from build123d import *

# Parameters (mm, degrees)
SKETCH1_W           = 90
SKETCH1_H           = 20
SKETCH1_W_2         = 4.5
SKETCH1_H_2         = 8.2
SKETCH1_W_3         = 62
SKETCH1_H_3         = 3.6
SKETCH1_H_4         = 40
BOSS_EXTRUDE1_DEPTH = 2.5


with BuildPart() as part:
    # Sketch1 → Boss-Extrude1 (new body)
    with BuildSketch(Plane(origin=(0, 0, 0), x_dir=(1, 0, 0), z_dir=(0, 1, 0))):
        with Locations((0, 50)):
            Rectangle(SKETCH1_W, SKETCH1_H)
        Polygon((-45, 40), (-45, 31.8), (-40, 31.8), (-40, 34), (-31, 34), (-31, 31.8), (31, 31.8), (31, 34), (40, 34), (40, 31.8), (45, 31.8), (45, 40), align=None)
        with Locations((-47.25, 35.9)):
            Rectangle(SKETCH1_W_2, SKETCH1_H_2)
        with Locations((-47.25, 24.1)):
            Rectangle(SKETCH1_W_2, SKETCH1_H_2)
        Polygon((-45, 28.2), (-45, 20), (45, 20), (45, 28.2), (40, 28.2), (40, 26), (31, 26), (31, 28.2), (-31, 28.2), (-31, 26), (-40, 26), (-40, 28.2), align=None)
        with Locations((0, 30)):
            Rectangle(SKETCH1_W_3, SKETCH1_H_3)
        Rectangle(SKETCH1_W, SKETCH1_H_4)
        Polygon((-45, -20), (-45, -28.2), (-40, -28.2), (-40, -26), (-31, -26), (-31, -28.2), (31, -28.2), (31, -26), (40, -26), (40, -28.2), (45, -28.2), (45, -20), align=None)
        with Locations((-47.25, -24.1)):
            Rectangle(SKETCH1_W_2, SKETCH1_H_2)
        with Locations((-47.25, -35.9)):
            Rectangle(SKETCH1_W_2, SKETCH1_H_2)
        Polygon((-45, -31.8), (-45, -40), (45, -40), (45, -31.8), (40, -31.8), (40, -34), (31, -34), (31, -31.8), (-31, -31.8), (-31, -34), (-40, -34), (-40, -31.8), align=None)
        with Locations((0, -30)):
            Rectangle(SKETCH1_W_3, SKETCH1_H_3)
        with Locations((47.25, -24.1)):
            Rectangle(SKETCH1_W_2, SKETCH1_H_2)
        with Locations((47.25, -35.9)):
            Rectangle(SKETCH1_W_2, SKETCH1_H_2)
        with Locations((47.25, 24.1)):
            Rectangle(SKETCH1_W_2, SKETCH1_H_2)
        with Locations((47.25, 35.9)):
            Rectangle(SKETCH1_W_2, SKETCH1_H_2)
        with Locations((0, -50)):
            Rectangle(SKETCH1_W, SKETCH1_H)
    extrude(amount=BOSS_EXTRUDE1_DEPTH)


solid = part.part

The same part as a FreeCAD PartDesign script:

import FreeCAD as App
import Part
import Sketcher
from FreeCAD import Vector
Q = App.Units.Quantity


def add_polygon(sketch, points):
    """Adds a closed chain of lines whose ends are joined by coincident constraints."""
    first, n = sketch.GeometryCount, len(points)
    for a, b in zip(points, points[1:] + points[:1]):
        sketch.addGeometry(Part.LineSegment(App.Vector(*a, 0), App.Vector(*b, 0)), False)
    for i in range(n):
        sketch.addConstraint(Sketcher.Constraint("Coincident", first + i, 2, first + (i + 1) % n, 1))

doc = App.newDocument("Part")
body = doc.addObject("PartDesign::Body", "Body")

sketch1 = body.newObject("Sketcher::SketchObject", "Sketch")
sketch1.AttachmentSupport = (doc.getObject("XZ_Plane"), [""])
sketch1.MapMode = "FlatFace"
add_polygon(sketch1, [(-45, -60), (-45, -40), (-49.5, -40), (-49.5, -31.8), (-40, -31.8), (-40, -34), (-31, -34), (-31, -26), (-40, -26), (-40, -28.2), (-49.5, -28.2), (-49.5, -20), (-45, -20), (-45, 20), (-49.5, 20), (-49.5, 28.2), (-40, 28.2), (-40, 26), (-31, 26), (-31, 34), (-40, 34), (-40, 31.8), (-49.5, 31.8), (-49.5, 40), (-45, 40), (-45, 60), (45, 60), (45, 40), (49.5, 40), (49.5, 31.8), (40, 31.8), (40, 34), (31, 34), (31, 26), (40, 26), (40, 28.2), (49.5, 28.2), (49.5, 20), (45, 20), (45, -20), (49.5, -20), (49.5, -28.2), (40, -28.2), (40, -26), (31, -26), (31, -34), (40, -34), (40, -31.8), (49.5, -31.8), (49.5, -40), (45, -40), (45, -60)])
sketch1.addConstraint([
    Sketcher.Constraint("Vertical", 0),
    Sketcher.Constraint("Horizontal", 1),
    Sketcher.Constraint("Vertical", 2),
    Sketcher.Constraint("Horizontal", 3),
    Sketcher.Constraint("Vertical", 4),
    Sketcher.Constraint("Horizontal", 5),
    Sketcher.Constraint("Vertical", 6),
    Sketcher.Constraint("Horizontal", 7),
    Sketcher.Constraint("Vertical", 8),
    Sketcher.Constraint("Horizontal", 9),
    Sketcher.Constraint("Vertical", 10),
    Sketcher.Constraint("Horizontal", 11),
    Sketcher.Constraint("Vertical", 12),
    Sketcher.Constraint("Horizontal", 13),
    Sketcher.Constraint("Vertical", 14),
    Sketcher.Constraint("Horizontal", 15),
    Sketcher.Constraint("Vertical", 16),
    Sketcher.Constraint("Horizontal", 17),
    Sketcher.Constraint("Vertical", 18),
    Sketcher.Constraint("Horizontal", 19),
    Sketcher.Constraint("Vertical", 20),
    Sketcher.Constraint("Horizontal", 21),
    Sketcher.Constraint("Vertical", 22),
    Sketcher.Constraint("Horizontal", 23),
    Sketcher.Constraint("Vertical", 24),
    Sketcher.Constraint("Horizontal", 25),
    Sketcher.Constraint("Vertical", 26),
    Sketcher.Constraint("Horizontal", 27),
    Sketcher.Constraint("Vertical", 28),
    Sketcher.Constraint("Horizontal", 29),
    Sketcher.Constraint("Vertical", 30),
    Sketcher.Constraint("Horizontal", 31),
    Sketcher.Constraint("Vertical", 32),
    Sketcher.Constraint("Horizontal", 33),
    Sketcher.Constraint("Vertical", 34),
    Sketcher.Constraint("Horizontal", 35),
    Sketcher.Constraint("Vertical", 36),
    Sketcher.Constraint("Horizontal", 37),
    Sketcher.Constraint("Vertical", 38),
    Sketcher.Constraint("Horizontal", 39),
    Sketcher.Constraint("Vertical", 40),
    Sketcher.Constraint("Horizontal", 41),
    Sketcher.Constraint("Vertical", 42),
    Sketcher.Constraint("Horizontal", 43),
    Sketcher.Constraint("Vertical", 44),
    Sketcher.Constraint("Horizontal", 45),
    Sketcher.Constraint("Vertical", 46),
    Sketcher.Constraint("Horizontal", 47),
    Sketcher.Constraint("Vertical", 48),
    Sketcher.Constraint("Horizontal", 49),
    Sketcher.Constraint("Vertical", 50),
    Sketcher.Constraint("Horizontal", 51),
    Sketcher.Constraint("Symmetric", 0, 2, 26, 2, -1, 1),
    Sketcher.Constraint("Symmetric", 2, 2, 28, 2, -1, 1),
    Sketcher.Constraint("Symmetric", 4, 2, 30, 2, -1, 1),
    Sketcher.Constraint("Symmetric", 6, 2, 32, 2, -1, 1),
    Sketcher.Constraint("Symmetric", 8, 2, 34, 2, -1, 1),
    Sketcher.Constraint("Symmetric", 10, 2, 36, 2, -1, 1),
    Sketcher.Constraint("Symmetric", 12, 2, 38, 2, -1, 1),
    Sketcher.Constraint("Symmetric", 14, 2, 40, 2, -1, 1),
    Sketcher.Constraint("Symmetric", 16, 2, 42, 2, -1, 1),
    Sketcher.Constraint("Symmetric", 18, 2, 44, 2, -1, 1),
    Sketcher.Constraint("Symmetric", 20, 2, 46, 2, -1, 1),
    Sketcher.Constraint("Symmetric", 22, 2, 48, 2, -1, 1),
    Sketcher.Constraint("Symmetric", 24, 2, 50, 2, -1, 1),
    Sketcher.Constraint("Symmetric", 23, 2, 26, 2, -2),
    Sketcher.Constraint("Symmetric", 21, 2, 28, 2, -2),
    Sketcher.Constraint("Symmetric", 19, 2, 30, 2, -2),
    Sketcher.Constraint("Symmetric", 17, 2, 32, 2, -2),
    Sketcher.Constraint("Symmetric", 15, 2, 34, 2, -2),
    Sketcher.Constraint("Symmetric", 13, 2, 36, 2, -2),
    Sketcher.Constraint("Vertical", 4, 2, 7, 2),
    Sketcher.Constraint("Vertical", 2, 2, 9, 2),
    Sketcher.Constraint("Vertical", 0, 2, 11, 2),
    Sketcher.Constraint("Equal", 4, 8),
    Sketcher.Constraint("Equal", 2, 10),
    Sketcher.Constraint("DistanceX", 5, 1, 5, 2, Q("9 mm")),
    Sketcher.Constraint("DistanceX", 25, 1, 25, 2, Q("90 mm")),
    Sketcher.Constraint("DistanceY", 0, 1, 0, 2, Q("20 mm")),
    Sketcher.Constraint("DistanceY", 6, 1, 6, 2, Q("8 mm")),
    Sketcher.Constraint("DistanceY", 12, 1, 12, 2, Q("40 mm")),
    Sketcher.Constraint("DistanceX", 1, 2, 1, 1, Q("4.5 mm")),
    Sketcher.Constraint("DistanceX", 3, 1, 3, 2, Q("9.5 mm")),
    Sketcher.Constraint("DistanceY", 2, 1, 2, 2, Q("8.2 mm")),
    Sketcher.Constraint("DistanceY", 4, 2, 4, 1, Q("2.2 mm")),
])
pad1 = body.newObject("PartDesign::Pad", "Pad")
pad1.Profile = sketch1
pad1.Length = 2.5
pad1.Reversed = True

doc.recompute()
